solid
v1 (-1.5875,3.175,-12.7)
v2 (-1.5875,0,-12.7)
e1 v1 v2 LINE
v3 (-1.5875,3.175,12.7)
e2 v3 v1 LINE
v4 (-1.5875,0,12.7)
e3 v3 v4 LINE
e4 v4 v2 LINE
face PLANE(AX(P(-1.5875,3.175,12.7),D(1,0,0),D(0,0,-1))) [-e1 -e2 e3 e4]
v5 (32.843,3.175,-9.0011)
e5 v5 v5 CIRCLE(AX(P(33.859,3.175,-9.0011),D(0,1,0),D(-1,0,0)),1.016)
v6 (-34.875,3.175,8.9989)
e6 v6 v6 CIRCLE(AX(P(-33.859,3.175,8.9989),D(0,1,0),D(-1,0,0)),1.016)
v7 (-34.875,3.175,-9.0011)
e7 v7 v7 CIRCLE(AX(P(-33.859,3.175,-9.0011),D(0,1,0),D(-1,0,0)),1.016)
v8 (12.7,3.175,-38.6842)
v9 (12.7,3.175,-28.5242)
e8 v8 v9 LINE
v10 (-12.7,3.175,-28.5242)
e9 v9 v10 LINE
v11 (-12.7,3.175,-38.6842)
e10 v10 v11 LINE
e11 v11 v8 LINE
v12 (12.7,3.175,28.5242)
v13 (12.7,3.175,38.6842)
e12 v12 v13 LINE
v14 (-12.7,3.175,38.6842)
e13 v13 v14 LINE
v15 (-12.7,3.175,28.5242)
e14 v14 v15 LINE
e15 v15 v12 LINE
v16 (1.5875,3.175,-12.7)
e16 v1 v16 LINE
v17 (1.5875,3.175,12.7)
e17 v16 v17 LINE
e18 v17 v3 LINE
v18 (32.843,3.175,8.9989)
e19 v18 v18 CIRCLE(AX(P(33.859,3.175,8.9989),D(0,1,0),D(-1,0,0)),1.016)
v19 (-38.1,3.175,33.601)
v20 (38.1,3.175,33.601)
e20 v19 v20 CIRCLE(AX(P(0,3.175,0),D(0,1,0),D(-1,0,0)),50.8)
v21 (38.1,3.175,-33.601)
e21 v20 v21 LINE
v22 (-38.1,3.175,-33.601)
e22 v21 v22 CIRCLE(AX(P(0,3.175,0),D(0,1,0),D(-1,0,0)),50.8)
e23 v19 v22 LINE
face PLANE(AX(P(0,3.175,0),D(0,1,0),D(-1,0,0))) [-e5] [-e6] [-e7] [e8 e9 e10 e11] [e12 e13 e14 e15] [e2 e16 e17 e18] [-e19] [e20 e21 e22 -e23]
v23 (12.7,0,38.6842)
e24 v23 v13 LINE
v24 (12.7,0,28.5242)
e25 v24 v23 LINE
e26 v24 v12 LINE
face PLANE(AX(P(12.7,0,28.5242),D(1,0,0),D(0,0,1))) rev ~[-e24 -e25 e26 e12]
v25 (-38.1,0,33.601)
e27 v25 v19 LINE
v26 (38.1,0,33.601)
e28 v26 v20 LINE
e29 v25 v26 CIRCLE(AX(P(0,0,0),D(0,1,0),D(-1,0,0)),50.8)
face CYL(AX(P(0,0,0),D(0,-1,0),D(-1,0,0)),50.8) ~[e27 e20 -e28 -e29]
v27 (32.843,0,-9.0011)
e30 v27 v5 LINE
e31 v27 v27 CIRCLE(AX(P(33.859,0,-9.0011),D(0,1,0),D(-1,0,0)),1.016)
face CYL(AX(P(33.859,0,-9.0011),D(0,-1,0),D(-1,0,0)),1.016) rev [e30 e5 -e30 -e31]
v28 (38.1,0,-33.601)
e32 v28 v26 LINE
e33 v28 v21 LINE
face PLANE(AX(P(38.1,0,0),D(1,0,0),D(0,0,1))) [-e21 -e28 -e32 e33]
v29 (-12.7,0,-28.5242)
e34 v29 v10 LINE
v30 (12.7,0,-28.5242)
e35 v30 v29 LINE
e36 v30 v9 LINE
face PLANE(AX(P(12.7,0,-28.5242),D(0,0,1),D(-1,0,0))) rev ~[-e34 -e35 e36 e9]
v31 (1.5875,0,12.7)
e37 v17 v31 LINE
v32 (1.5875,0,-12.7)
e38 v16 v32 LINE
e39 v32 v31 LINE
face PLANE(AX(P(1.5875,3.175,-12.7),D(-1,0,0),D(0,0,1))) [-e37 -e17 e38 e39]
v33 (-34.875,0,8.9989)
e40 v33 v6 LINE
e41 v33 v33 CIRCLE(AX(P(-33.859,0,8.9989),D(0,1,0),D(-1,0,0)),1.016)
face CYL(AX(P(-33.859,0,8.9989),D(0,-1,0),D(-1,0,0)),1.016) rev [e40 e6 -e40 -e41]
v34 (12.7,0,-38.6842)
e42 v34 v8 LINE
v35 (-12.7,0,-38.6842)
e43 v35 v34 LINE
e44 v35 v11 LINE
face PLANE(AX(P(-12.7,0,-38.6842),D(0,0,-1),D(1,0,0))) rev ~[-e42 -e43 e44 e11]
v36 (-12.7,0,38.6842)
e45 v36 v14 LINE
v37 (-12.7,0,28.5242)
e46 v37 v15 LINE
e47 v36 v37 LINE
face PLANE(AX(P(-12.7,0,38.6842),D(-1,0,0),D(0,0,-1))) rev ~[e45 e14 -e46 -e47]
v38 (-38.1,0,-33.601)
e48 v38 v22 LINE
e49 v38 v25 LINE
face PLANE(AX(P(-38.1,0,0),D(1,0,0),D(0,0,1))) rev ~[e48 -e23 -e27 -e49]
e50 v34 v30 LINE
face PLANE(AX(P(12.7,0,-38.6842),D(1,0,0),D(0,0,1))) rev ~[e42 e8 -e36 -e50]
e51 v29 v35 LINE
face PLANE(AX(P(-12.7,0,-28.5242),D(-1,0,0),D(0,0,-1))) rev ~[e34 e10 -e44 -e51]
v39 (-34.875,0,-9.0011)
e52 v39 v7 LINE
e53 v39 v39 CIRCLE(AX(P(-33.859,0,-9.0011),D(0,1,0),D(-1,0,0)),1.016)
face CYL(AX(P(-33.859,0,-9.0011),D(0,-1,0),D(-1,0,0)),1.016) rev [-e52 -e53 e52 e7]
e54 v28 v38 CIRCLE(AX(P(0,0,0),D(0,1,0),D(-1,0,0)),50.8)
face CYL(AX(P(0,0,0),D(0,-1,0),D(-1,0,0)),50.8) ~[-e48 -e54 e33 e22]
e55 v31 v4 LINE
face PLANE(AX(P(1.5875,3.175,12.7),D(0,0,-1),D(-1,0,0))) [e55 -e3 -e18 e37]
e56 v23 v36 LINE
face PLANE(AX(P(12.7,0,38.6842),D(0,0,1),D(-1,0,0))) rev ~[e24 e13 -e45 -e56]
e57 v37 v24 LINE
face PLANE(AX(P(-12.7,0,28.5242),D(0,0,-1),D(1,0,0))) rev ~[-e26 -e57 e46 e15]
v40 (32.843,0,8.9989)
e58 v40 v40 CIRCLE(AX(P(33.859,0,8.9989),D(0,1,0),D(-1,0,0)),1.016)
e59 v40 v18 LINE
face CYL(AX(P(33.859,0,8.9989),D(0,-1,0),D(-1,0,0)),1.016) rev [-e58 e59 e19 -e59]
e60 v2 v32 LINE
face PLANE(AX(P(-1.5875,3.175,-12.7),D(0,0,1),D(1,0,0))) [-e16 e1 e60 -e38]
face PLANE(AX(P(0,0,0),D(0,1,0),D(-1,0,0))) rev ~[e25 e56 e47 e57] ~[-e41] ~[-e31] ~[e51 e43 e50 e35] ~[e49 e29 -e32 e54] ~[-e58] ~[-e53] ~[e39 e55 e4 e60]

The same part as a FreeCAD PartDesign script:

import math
import FreeCAD as App
import Part
import Sketcher
Q = App.Units.Quantity

doc = App.newDocument("Part")
params = doc.addObject("Spreadsheet::Sheet", "Params")
for row, (alias, value) in enumerate([
    ("sketch1_radius", "2 in"),
    ("sketch1_diameter", "0.08 in"),
    ("sketch1_width", "1 in"),
    ("sketch1_height", "0.4 in"),
    ("pad1_length", "0.125 in"),
    ("sketch2_height", "1 in"),
    ("sketch2_width", "0.125 in"),
], start=1):
    params.set(f"A{row}", alias)
    params.set(f"B{row}", "=" + value)
    params.setAlias(f"B{row}", alias)

body = doc.addObject("PartDesign::Body", "Body")

sketch1 = body.newObject("Sketcher::SketchObject", "Sketch")
sketch1.AttachmentSupport = (doc.getObject("XZ_Plane"), [""])
sketch1.MapMode = "FlatFace"
sketch1.addGeometry([
    Part.LineSegment(App.Vector(-38.1, -33.6, 0), App.Vector(-38.1, 33.6, 0)),
    Part.ArcOfCircle(Part.Circle(App.Vector(0, 0, 0), App.Vector(0, 0, 1), 50.8), math.radians(41), math.radians(139)),
    Part.LineSegment(App.Vector(38.1, 33.6, 0), App.Vector(38.1, -33.6, 0)),
    Part.ArcOfCircle(Part.Circle(App.Vector(0, 0, 0), App.Vector(0, 0, 1), 50.8), math.radians(-139), math.radians(-41)),
    Part.LineSegment(App.Vector(-12.7, -28.5, 0), App.Vector(-12.7, -38.7, 0)),
    Part.LineSegment(App.Vector(-12.7, -38.7, 0), App.Vector(12.7, -38.7, 0)),
    Part.LineSegment(App.Vector(12.7, -38.7, 0), App.Vector(12.7, -28.5, 0)),
    Part.LineSegment(App.Vector(12.7, -28.5, 0), App.Vector(-12.7, -28.5, 0)),
    Part.Circle(App.Vector(33.9, -9, 0), App.Vector(0, 0, 1), 1),
    Part.Circle(App.Vector(-33.9, -9, 0), App.Vector(0, 0, 1), 1),
    Part.Circle(App.Vector(33.9, 9, 0), App.Vector(0, 0, 1), 1),
    Part.LineSegment(App.Vector(-12.7, 38.7, 0), App.Vector(-12.7, 28.5, 0)),
    Part.LineSegment(App.Vector(-12.7, 28.5, 0), App.Vector(12.7, 28.5, 0)),
    Part.LineSegment(App.Vector(12.7, 28.5, 0), App.Vector(12.7, 38.7, 0)),
    Part.LineSegment(App.Vector(12.7, 38.7, 0), App.Vector(-12.7, 38.7, 0)),
    Part.Circle(App.Vector(-33.9, 9, 0), App.Vector(0, 0, 1), 1),
], False)
sketch1.addConstraint([
    Sketcher.Constraint("Coincident", 0, 2, 1, 2),
    Sketcher.Constraint("Coincident", 1, 1, 2, 1),
    Sketcher.Constraint("Coincident", 2, 2, 3, 2),
    Sketcher.Constraint("Coincident", 3, 1, 0, 1),
    Sketcher.Constraint("Coincident", 4, 2, 5, 1),
    Sketcher.Constraint("Coincident", 5, 2, 6, 1),
    Sketcher.Constraint("Coincident", 6, 2, 7, 1),
    Sketcher.Constraint("Coincident", 7, 2, 4, 1),
    Sketcher.Constraint("Coincident", 11, 2, 12, 1),
    Sketcher.Constraint("Coincident", 12, 2, 13, 1),
    Sketcher.Constraint("Coincident", 13, 2, 14, 1),
    Sketcher.Constraint("Coincident", 14, 2, 11, 1),
    Sketcher.Constraint("Vertical", 0),
    Sketcher.Constraint("Vertical", 2),
    Sketcher.Constraint("Vertical", 4),
    Sketcher.Constraint("Horizontal", 5),
    Sketcher.Constraint("Vertical", 6),
    Sketcher.Constraint("Horizontal", 7),
    Sketcher.Constraint("Vertical", 11),
    Sketcher.Constraint("Horizontal", 12),
    Sketcher.Constraint("Vertical", 13),
    Sketcher.Constraint("Horizontal", 14),
    Sketcher.Constraint("Coincident", 1, 3, -1, 1),
    Sketcher.Constraint("Coincident", 3, 3, -1, 1),
    Sketcher.Constraint("Equal", 1, 3),
    Sketcher.Constraint("Equal", 8, 9),
    Sketcher.Constraint("Equal", 9, 10),
    Sketcher.Constraint("Equal", 10, 15),
    Sketcher.Constraint("Symmetric", 6, 2, 11, 2, -1, 1),
    Sketcher.Constraint("Symmetric", 4, 2, 13, 2, -1, 1),
    Sketcher.Constraint("Symmetric", 8, 3, 9, 3, -2),
    Sketcher.Constraint("Symmetric", 10, 3, 15, 3, -2),
    Sketcher.Constraint("Horizontal", 0, 2, 1, 1),
    Sketcher.Constraint("Vertical", 8, 3, 10, 3),
    Sketcher.Constraint("Vertical", 7, 2, 11, 2),
    Sketcher.Constraint("Radius", 1, Q("2 in")),
    Sketcher.Constraint("Diameter", 8, Q("0.08 in")),
    Sketcher.Constraint("DistanceX", 5, 1, 5, 2, Q("1 in")),
    Sketcher.Constraint("DistanceY", 4, 2, 4, 1, Q("0.4 in")),
    Sketcher.Constraint("DistanceX", 3, 1, 4, 2, Q("1 in")),
    Sketcher.Constraint("DistanceY", 2, 2, 8, 3, Q("0.9685 in")),
    Sketcher.Constraint("DistanceY", 8, 3, 10, 3, Q("18 mm")),
    Sketcher.Constraint("DistanceX", 0, 2, 15, 3, Q("4.241 mm")),
    Sketcher.Constraint("DistanceY", 4, 2, -1, 1, Q("1.523 in")),
])
sketch1.setExpression("Constraints[35]", "Params.sketch1_radius")
sketch1.setExpression("Constraints[36]", "Params.sketch1_diameter")
sketch1.setExpression("Constraints[37]", "Params.sketch1_width")
sketch1.setExpression("Constraints[38]", "Params.sketch1_height")
pad1 = body.newObject("PartDesign::Pad", "Pad")
pad1.Profile = sketch1
pad1.setExpression("Length", "Params.pad1_length")
pad1.Reversed = True

sketch2 = body.newObject("Sketcher::SketchObject", "Sketch001")
sketch2.AttachmentSupport = (doc.getObject("XZ_Plane"), [""])
sketch2.MapMode = "FlatFace"
sketch2.AttachmentOffset = App.Placement(App.Vector(0, 0, -0.125 * 25.4), App.Rotation())
sketch2.addGeometry([
    Part.LineSegment(App.Vector(1.6, -12.7, 0), App.Vector(-1.6, -12.7, 0)),
    Part.LineSegment(App.Vector(-1.6, -12.7, 0), App.Vector(-1.6, 12.7, 0)),
    Part.LineSegment(App.Vector(-1.6, 12.7, 0), App.Vector(1.6, 12.7, 0)),
    Part.LineSegment(App.Vector(1.6, 12.7, 0), App.Vector(1.6, -12.7, 0)),
], False)
sketch2.addConstraint([
    Sketcher.Constraint("Coincident", 0, 2, 1, 1),
    Sketcher.Constraint("Coincident", 1, 2, 2, 1),
    Sketcher.Constraint("Coincident", 2, 2, 3, 1),
    Sketcher.Constraint("Coincident", 3, 2, 0, 1),
    Sketcher.Constraint("Horizontal", 0),
    Sketcher.Constraint("Vertical", 1),
    Sketcher.Constraint("Horizontal", 2),
    Sketcher.Constraint("Vertical", 3),
    Sketcher.Constraint("Symmetric", 0, 2, 2, 2, -1, 1),
    Sketcher.Constraint("DistanceY", 1, 1, 1, 2, Q("1 in")),
    Sketcher.Constraint("DistanceX", 0, 2, 0, 1, Q("0.125 in")),
])
sketch2.setExpression("Constraints[9]", "Params.sketch2_height")
sketch2.setExpression("Constraints[10]", "Params.sketch2_width")
pocket1 = body.newObject("PartDesign::Pocket", "Pocket")
pocket1.Profile = sketch2
pocket1.Type = "ThroughAll"
pocket1.Reversed = True

doc.recompute()
